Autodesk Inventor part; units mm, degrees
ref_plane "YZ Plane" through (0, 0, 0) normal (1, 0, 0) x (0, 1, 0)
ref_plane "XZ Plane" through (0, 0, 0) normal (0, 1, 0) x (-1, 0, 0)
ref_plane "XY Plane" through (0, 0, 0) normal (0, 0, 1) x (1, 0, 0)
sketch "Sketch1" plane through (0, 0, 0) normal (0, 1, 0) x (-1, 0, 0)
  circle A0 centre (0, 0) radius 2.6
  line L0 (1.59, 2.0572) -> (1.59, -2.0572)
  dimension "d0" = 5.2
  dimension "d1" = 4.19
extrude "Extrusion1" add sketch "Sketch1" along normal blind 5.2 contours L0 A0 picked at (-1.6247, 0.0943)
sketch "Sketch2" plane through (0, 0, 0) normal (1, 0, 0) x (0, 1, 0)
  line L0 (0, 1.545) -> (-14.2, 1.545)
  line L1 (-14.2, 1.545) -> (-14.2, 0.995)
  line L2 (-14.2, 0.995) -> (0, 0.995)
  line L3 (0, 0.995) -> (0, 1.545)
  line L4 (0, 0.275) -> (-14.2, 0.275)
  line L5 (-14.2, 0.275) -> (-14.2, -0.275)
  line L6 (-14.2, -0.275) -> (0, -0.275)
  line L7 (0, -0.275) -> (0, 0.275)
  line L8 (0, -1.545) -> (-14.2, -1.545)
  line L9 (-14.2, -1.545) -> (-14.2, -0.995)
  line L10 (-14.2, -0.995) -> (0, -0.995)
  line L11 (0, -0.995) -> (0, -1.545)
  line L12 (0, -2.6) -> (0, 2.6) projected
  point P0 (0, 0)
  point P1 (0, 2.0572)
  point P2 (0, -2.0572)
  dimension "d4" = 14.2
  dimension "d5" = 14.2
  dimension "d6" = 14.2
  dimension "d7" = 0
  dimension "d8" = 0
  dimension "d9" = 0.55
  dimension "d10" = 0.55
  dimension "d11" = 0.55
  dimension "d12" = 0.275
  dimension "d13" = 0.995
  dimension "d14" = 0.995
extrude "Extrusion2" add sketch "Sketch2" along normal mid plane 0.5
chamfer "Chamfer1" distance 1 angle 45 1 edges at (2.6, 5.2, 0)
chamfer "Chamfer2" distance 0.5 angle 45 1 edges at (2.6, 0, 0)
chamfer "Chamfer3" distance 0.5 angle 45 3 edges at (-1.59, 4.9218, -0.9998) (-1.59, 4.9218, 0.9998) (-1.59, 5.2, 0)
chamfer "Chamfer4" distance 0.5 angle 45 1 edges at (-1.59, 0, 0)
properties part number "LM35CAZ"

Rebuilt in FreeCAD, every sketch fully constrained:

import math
import FreeCAD as App
import Part
import Sketcher
from FreeCAD import Vector


def edges_at(feature, points):
    """Names of the edges that pass closest to the given points."""
    edges = feature.Shape.Edges
    near = lambda p: min(range(len(edges)), key=lambda i: edges[i].distToShape(Part.Vertex(*p))[0])
    return sorted({f"Edge{near(p) + 1}" for p in points})


def add_polygon(sketch, points):
    """Adds a closed chain of lines whose ends are joined by coincident constraints."""
    first, n = sketch.GeometryCount, len(points)
    for a, b in zip(points, points[1:] + points[:1]):
        sketch.addGeometry(Part.LineSegment(App.Vector(*a, 0), App.Vector(*b, 0)), False)
    for i in range(n):
        sketch.addConstraint(Sketcher.Constraint("Coincident", first + i, 2, first + (i + 1) % n, 1))

doc = App.newDocument("Part")
params = doc.addObject("Spreadsheet::Sheet", "Params")
for row, (alias, value) in enumerate([
    ("sketch1_radius", "2.6 mm"),
    ("pad1_length", "5.2 mm"),
    ("sketch2_width", "14.2 mm"),
    ("sketch2_height", "0.55 mm"),
    ("pad2_length", "0.5 mm"),
    ("chamfer_size", "1 mm"),
    ("chamfer2_size", "0.5 mm"),
    ("chamfer3_size", "0.5 mm"),
    ("chamfer4_size", "0.5 mm"),
], start=1):
    params.set(f"A{row}", alias)
    params.set(f"B{row}", "=" + value)
    params.setAlias(f"B{row}", alias)

body = doc.addObject("PartDesign::Body", "Body")

# Sketch on XZ plane
sketch1 = doc.addObject("Sketcher::SketchObject", "Sketch")
body.addObject(sketch1)
sketch1.AttachmentSupport = (doc.XZ_Plane, [""])
sketch1.MapMode = "FlatFace"
sketch1.addGeometry([
    Part.LineSegment(Vector(-1.6, -2.1, 0), Vector(-1.6, 2.1, 0)),
    Part.ArcOfCircle(Part.Circle(Vector(0, 0, 0), Vector(0, 0, 1), 2.6), math.radians(-128), math.radians(128)),
], False)
sketch1.addConstraint([
    Sketcher.Constraint("Coincident", 0, 1, 1, 1),
    Sketcher.Constraint("Coincident", 1, 2, 0, 2),
    Sketcher.Constraint("Vertical", 0),
    Sketcher.Constraint("Coincident", 1, 3, -1, 1),
    Sketcher.Constraint("Radius", 1, 2.6),
    Sketcher.Constraint("DistanceX", 0, 1, -1, 1, 1.59),
])
sketch1.setExpression("Constraints[4]", "Params.sketch1_radius")
pad1 = doc.addObject("PartDesign::Pad", "Pad")
body.addObject(pad1)
pad1.Profile = sketch1
pad1.setExpression("Length", "Params.pad1_length")
pad1.Reversed = True

# Sketch on YZ plane
sketch2 = doc.addObject("Sketcher::SketchObject", "Sketch001")
body.addObject(sketch2)
sketch2.AttachmentSupport = (doc.YZ_Plane, [""])
sketch2.MapMode = "FlatFace"
add_polygon(sketch2, [(0, 1), (0, 1.5), (-14.2, 1.5), (-14.2, 1)])  # lines 0-3
add_polygon(sketch2, [(0, -1.5), (0, -1), (-14.2, -1), (-14.2, -1.5)])  # lines 4-7
add_polygon(sketch2, [(0, -0.3), (0, 0.3), (-14.2, 0.3), (-14.2, -0.3)])  # lines 8-11
sketch2.addConstraint([
    Sketcher.Constraint("Vertical", 0),
    Sketcher.Constraint("Horizontal", 1),
    Sketcher.Constraint("Vertical", 2),
    Sketcher.Constraint("Horizontal", 3),
    Sketcher.Constraint("Vertical", 4),
    Sketcher.Constraint("Horizontal", 5),
    Sketcher.Constraint("Vertical", 6),
    Sketcher.Constraint("Horizontal", 7),
    Sketcher.Constraint("Vertical", 8),
    Sketcher.Constraint("Horizontal", 9),
    Sketcher.Constraint("Vertical", 10),
    Sketcher.Constraint("Horizontal", 11),
    Sketcher.Constraint("Symmetric", 3, 2, 4, 2, -1, 1),
    Sketcher.Constraint("Symmetric", 8, 2, 11, 2, -1, 1),
    Sketcher.Constraint("Symmetric", 1, 2, 6, 2, -1),
    Sketcher.Constraint("PointOnObject", 0, 2, -2),
    Sketcher.Constraint("Vertical", 6, 2, 9, 2),
    Sketcher.Constraint("Equal", 6, 8),
    Sketcher.Constraint("DistanceX", 1, 2, 1, 1, 14.2),
    Sketcher.Constraint("DistanceY", 0, 1, 0, 2, 0.55),
    Sketcher.Constraint("DistanceY", -1, 1, 2, 2, 0.995),
])
sketch2.setExpression("Constraints[30]", "Params.sketch2_width")
sketch2.setExpression("Constraints[31]", "Params.sketch2_height")
pad2 = doc.addObject("PartDesign::Pad", "Pad001")
body.addObject(pad2)
pad2.Profile = sketch2
pad2.setExpression("Length", "Params.pad2_length")
pad2.Midplane = True
doc.recompute()

chamfer = doc.addObject("PartDesign::Chamfer", "Chamfer")
body.addObject(chamfer)
chamfer.Base = (pad2, edges_at(pad2, [(2.6, 5.2, 0)]))
chamfer.setExpression("Size", "Params.chamfer_size")
doc.recompute()

chamfer2 = doc.addObject("PartDesign::Chamfer", "Chamfer001")
body.addObject(chamfer2)
chamfer2.Base = (chamfer, edges_at(chamfer, [(2.6, 0, 0)]))
chamfer2.setExpression("Size", "Params.chamfer2_size")
doc.recompute()

chamfer3 = doc.addObject("PartDesign::Chamfer", "Chamfer002")
body.addObject(chamfer3)
chamfer3.Base = (chamfer2, edges_at(chamfer2, [(-1.59, 4.922, -1), (-1.59, 4.922, 1), (-1.59, 5.2, 0)]))
chamfer3.setExpression("Size", "Params.chamfer3_size")
doc.recompute()

chamfer4 = doc.addObject("PartDesign::Chamfer", "Chamfer003")
body.addObject(chamfer4)
chamfer4.Base = (chamfer3, edges_at(chamfer3, [(-1.59, 0, 0)]))
chamfer4.setExpression("Size", "Params.chamfer4_size")

doc.recompute()
